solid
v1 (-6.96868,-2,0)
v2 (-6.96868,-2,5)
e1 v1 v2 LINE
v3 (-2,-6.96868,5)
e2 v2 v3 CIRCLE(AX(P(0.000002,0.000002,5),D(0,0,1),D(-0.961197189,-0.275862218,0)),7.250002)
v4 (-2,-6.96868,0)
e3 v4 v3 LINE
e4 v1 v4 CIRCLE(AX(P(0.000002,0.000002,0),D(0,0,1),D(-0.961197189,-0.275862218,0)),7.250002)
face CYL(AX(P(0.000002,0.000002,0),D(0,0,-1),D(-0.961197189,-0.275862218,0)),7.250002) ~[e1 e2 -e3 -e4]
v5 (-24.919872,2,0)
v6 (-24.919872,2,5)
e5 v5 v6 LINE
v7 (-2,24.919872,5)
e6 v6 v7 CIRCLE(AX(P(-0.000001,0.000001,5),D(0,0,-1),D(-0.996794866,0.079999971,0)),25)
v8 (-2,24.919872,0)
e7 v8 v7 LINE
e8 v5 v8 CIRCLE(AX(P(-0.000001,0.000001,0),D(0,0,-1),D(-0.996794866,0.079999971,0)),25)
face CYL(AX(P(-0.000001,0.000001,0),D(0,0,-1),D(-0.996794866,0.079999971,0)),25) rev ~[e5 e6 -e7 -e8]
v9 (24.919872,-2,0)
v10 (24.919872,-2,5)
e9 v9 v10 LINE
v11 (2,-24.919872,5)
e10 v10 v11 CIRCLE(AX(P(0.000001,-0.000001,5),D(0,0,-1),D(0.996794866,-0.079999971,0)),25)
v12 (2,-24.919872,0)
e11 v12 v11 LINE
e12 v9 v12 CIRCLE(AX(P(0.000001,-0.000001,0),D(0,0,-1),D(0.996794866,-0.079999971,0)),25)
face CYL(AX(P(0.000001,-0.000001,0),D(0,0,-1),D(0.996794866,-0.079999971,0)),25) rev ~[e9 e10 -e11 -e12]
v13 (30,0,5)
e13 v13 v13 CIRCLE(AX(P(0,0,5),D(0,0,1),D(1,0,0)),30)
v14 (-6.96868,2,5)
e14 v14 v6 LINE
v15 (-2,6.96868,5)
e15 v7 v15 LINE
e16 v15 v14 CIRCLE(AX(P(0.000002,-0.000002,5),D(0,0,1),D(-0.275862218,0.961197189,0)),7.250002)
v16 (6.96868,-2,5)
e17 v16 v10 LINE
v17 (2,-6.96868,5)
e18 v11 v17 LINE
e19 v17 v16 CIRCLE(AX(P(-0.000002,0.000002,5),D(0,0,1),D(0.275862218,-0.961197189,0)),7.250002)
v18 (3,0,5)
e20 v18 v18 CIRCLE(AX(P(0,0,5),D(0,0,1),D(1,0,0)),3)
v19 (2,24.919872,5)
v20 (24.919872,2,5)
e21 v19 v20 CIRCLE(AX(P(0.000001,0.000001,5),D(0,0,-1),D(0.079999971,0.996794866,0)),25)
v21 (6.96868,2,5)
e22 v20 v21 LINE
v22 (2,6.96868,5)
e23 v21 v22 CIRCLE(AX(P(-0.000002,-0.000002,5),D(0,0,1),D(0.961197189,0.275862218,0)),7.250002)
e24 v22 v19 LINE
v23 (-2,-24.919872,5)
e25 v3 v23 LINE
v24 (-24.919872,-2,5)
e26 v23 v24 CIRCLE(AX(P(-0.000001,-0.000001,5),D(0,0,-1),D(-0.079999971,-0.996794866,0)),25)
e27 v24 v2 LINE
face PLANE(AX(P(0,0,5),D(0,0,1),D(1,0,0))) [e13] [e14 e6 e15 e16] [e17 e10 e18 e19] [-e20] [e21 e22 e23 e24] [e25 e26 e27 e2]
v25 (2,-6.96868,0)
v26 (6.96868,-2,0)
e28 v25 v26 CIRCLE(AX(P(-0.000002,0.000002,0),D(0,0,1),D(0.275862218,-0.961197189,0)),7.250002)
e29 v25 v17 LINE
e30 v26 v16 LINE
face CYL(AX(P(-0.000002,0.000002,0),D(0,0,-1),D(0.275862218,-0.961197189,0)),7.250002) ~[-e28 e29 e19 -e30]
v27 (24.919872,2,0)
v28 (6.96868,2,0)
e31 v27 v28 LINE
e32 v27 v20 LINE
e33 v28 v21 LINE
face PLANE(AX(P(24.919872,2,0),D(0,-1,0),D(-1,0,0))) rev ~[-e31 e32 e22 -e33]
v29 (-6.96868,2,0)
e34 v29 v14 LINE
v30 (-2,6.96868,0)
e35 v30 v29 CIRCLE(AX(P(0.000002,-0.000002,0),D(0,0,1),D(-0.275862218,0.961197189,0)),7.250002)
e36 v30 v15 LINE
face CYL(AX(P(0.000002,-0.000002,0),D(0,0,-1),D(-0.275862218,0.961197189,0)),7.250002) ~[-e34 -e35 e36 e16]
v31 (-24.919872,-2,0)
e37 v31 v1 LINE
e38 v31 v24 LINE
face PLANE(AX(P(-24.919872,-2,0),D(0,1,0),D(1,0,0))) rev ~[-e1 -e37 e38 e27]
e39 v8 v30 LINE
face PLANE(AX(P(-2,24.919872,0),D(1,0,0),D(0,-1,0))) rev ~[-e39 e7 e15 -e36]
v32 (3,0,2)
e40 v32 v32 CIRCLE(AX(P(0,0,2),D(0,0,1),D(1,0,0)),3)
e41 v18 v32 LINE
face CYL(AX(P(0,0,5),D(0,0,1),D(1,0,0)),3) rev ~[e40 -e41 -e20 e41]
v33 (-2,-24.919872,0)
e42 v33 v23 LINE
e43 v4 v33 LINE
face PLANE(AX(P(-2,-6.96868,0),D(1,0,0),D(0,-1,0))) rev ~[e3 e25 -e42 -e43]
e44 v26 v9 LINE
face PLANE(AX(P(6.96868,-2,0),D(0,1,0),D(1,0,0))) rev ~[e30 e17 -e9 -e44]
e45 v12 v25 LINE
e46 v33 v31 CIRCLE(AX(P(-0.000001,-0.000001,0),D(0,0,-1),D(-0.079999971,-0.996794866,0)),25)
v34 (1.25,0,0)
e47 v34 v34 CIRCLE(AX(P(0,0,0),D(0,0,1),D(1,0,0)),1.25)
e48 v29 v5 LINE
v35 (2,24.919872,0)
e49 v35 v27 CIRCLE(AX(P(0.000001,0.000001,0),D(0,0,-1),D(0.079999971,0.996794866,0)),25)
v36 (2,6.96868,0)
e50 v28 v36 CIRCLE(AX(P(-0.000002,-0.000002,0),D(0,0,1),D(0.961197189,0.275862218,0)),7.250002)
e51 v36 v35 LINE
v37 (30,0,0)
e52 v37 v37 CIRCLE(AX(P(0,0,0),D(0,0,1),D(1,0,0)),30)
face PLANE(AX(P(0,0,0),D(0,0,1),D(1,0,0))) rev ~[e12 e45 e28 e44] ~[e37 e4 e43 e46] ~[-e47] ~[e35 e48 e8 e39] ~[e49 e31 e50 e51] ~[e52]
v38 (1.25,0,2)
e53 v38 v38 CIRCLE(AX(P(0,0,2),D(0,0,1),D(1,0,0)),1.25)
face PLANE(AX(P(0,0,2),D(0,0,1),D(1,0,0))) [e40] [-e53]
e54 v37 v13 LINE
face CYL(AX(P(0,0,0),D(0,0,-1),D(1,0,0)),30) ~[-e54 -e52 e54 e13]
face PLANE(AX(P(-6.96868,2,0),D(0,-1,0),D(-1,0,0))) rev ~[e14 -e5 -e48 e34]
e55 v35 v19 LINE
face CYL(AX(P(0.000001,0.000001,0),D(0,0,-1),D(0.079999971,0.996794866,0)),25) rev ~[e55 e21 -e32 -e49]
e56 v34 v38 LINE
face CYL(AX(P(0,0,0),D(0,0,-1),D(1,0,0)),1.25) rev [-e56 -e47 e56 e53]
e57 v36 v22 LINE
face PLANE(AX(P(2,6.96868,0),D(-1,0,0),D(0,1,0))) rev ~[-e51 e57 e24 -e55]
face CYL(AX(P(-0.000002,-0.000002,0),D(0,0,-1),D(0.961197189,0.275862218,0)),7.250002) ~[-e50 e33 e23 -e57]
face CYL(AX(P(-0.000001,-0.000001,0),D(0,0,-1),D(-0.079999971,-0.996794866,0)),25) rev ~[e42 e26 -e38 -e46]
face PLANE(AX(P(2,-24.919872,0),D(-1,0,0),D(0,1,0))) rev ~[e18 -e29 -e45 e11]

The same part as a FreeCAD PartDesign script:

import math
import FreeCAD as App
import Part
import Sketcher
from FreeCAD import Vector
Q = App.Units.Quantity

doc = App.newDocument("Part")
body = doc.addObject("PartDesign::Body", "Body")

# Sketch on XY plane
sketch1 = doc.addObject("Sketcher::SketchObject", "Sketch")
body.addObject(sketch1)
sketch1.AttachmentSupport = (doc.XY_Plane, [""])
sketch1.MapMode = "FlatFace"
sketch1.addGeometry([
    Part.Circle(Vector(0, 0, 0), Vector(0, 0, 1), 30),  # 0
    Part.LineSegment(Vector(-24.9, -2, 0), Vector(-7, -2, 0)),  # 1
    Part.ArcOfCircle(Part.Circle(Vector(0, 0, 0), Vector(0, 0, 1), 7.3), math.radians(-164), math.radians(-106)),  # 2
    Part.LineSegment(Vector(-2, -7, 0), Vector(-2, -24.9, 0)),  # 3
    Part.ArcOfCircle(Part.Circle(Vector(0, 0, 0), Vector(0, 0, 1), 25), math.radians(-175), math.radians(-95)),  # 4
    Part.Circle(Vector(0, 0, 0), Vector(0, 0, 1), 1.2),  # 5
    Part.ArcOfCircle(Part.Circle(Vector(0, 0, 0), Vector(0, 0, 1), 25), math.radians(-85), math.radians(-5)),  # 6
    Part.LineSegment(Vector(2, -24.9, 0), Vector(2, -7, 0)),  # 7
    Part.ArcOfCircle(Part.Circle(Vector(0, 0, 0), Vector(0, 0, 1), 7.3), math.radians(-74), math.radians(-16)),  # 8
    Part.LineSegment(Vector(7, -2, 0), Vector(24.9, -2, 0)),  # 9
    Part.LineSegment(Vector(-7, 2, 0), Vector(-24.9, 2, 0)),  # 10
    Part.ArcOfCircle(Part.Circle(Vector(0, 0, 0), Vector(0, 0, 1), 25), math.radians(95), math.radians(175)),  # 11
    Part.LineSegment(Vector(-2, 24.9, 0), Vector(-2, 7, 0)),  # 12
    Part.ArcOfCircle(Part.Circle(Vector(0, 0, 0), Vector(0, 0, 1), 7.3), math.radians(106), math.radians(164)),  # 13
    Part.LineSegment(Vector(24.9, 2, 0), Vector(7, 2, 0)),  # 14
    Part.ArcOfCircle(Part.Circle(Vector(0, 0, 0), Vector(0, 0, 1), 7.3), math.radians(16), math.radians(74)),  # 15
    Part.LineSegment(Vector(2, 7, 0), Vector(2, 24.9, 0)),  # 16
    Part.ArcOfCircle(Part.Circle(Vector(0, 0, 0), Vector(0, 0, 1), 25), math.radians(5), math.radians(85)),  # 17
], False)
sketch1.addConstraint([
    Sketcher.Constraint("Coincident", 1, 2, 2, 1),
    Sketcher.Constraint("Coincident", 2, 2, 3, 1),
    Sketcher.Constraint("Coincident", 3, 2, 4, 2),
    Sketcher.Constraint("Coincident", 4, 1, 1, 1),
    Sketcher.Constraint("Coincident", 6, 1, 7, 1),
    Sketcher.Constraint("Coincident", 7, 2, 8, 1),
    Sketcher.Constraint("Coincident", 8, 2, 9, 1),
    Sketcher.Constraint("Coincident", 9, 2, 6, 2),
    Sketcher.Constraint("Coincident", 10, 2, 11, 2),
    Sketcher.Constraint("Coincident", 11, 1, 12, 1),
    Sketcher.Constraint("Coincident", 12, 2, 13, 1),
    Sketcher.Constraint("Coincident", 13, 2, 10, 1),
    Sketcher.Constraint("Coincident", 14, 2, 15, 1),
    Sketcher.Constraint("Coincident", 15, 2, 16, 1),
    Sketcher.Constraint("Coincident", 16, 2, 17, 2),
    Sketcher.Constraint("Coincident", 17, 1, 14, 1),
    Sketcher.Constraint("Horizontal", 1),
    Sketcher.Constraint("Vertical", 3),
    Sketcher.Constraint("Vertical", 7),
    Sketcher.Constraint("Horizontal", 9),
    Sketcher.Constraint("Horizontal", 10),
    Sketcher.Constraint("Vertical", 12),
    Sketcher.Constraint("Horizontal", 14),
    Sketcher.Constraint("Vertical", 16),
    Sketcher.Constraint("Coincident", 0, 3, -1, 1),
    Sketcher.Constraint("Coincident", 2, 3, -1, 1),
    Sketcher.Constraint("Coincident", 4, 3, -1, 1),
    Sketcher.Constraint("Coincident", 5, 3, -1, 1),
    Sketcher.Constraint("Coincident", 6, 3, -1, 1),
    Sketcher.Constraint("Coincident", 8, 3, -1, 1),
    Sketcher.Constraint("Coincident", 11, 3, -1, 1),
    Sketcher.Constraint("Coincident", 13, 3, -1, 1),
    Sketcher.Constraint("Coincident", 15, 3, -1, 1),
    Sketcher.Constraint("Coincident", 17, 3, -1, 1),
    Sketcher.Constraint("Equal", 4, 6),
    Sketcher.Constraint("Equal", 2, 8),
    Sketcher.Constraint("Equal", 6, 11),
    Sketcher.Constraint("Equal", 8, 13),
    Sketcher.Constraint("Equal", 13, 15),
    Sketcher.Constraint("Equal", 11, 17),
    Sketcher.Constraint("Horizontal", 3, 2, 6, 1),
    Sketcher.Constraint("Horizontal", 4, 1, 8, 2),
    Sketcher.Constraint("Horizontal", 13, 2, 14, 2),
    Sketcher.Constraint("Horizontal", 12, 2, 15, 2),
    Sketcher.Constraint("Vertical", 4, 1, 10, 2),
    Sketcher.Constraint("Vertical", 3, 2, 11, 1),
    Sketcher.Constraint("Equal", 14, 3),
    Sketcher.Constraint("Diameter", 0, Q("60 mm")),
    Sketcher.Constraint("Radius", 4, Q("25 mm")),
    Sketcher.Constraint("Diameter", 5, Q("2.5 mm")),
    Sketcher.Constraint("DistanceY", 1, 2, -1, 1, Q("2 mm")),
    Sketcher.Constraint("Radius", 2, Q("7.250002 mm")),
])
pad1 = doc.addObject("PartDesign::Pad", "Pad")
body.addObject(pad1)
pad1.Profile = sketch1
pad1.Length = 5

# Sketch on XY plane
sketch2 = doc.addObject("Sketcher::SketchObject", "Sketch001")
body.addObject(sketch2)
sketch2.AttachmentSupport = (doc.XY_Plane, [""])
sketch2.MapMode = "FlatFace"
sketch2.AttachmentOffset = App.Placement(Vector(0, 0, 5), App.Rotation())
sketch2.addGeometry([
    Part.Circle(Vector(0, 0, 0), Vector(0, 0, 1), 3),
    Part.Circle(Vector(0, 0, 0), Vector(0, 0, 1), 1.2),
], False)
sketch2.addConstraint([
    Sketcher.Constraint("Coincident", 0, 3, -1, 1),
    Sketcher.Constraint("Coincident", 1, 3, -1, 1),
    Sketcher.Constraint("Diameter", 0, Q("6 mm")),
    Sketcher.Constraint("Diameter", 1, Q("2.5 mm")),
])
pocket1 = doc.addObject("PartDesign::Pocket", "Pocket")
body.addObject(pocket1)
pocket1.Profile = sketch2
pocket1.Length = 3

doc.recompute()
